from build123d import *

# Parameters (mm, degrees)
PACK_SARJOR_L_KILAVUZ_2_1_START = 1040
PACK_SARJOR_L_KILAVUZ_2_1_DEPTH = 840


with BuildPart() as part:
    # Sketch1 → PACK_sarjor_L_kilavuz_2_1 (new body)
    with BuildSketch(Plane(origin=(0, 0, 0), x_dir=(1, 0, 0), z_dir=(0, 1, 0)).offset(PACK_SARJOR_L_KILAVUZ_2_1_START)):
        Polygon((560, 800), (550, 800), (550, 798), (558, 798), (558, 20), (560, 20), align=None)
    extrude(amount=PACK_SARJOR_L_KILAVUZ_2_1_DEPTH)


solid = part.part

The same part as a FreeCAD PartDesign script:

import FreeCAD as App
import Part
import Sketcher

V = App.Vector
Q = App.Units.Quantity


def add_polygon(sketch, points):
    """Adds a closed chain of lines whose ends are joined by coincident constraints."""
    first, n = sketch.GeometryCount, len(points)
    for a, b in zip(points, points[1:] + points[:1]):
        sketch.addGeometry(Part.LineSegment(App.Vector(*a, 0), App.Vector(*b, 0)), False)
    for i in range(n):
        sketch.addConstraint(Sketcher.Constraint("Coincident", first + i, 2, first + (i + 1) % n, 1))

doc = App.newDocument("Part")
body = doc.addObject("PartDesign::Body", "Body")

# Sketch on XZ plane
sketch1 = body.newObject("Sketcher::SketchObject", "Sketch")
sketch1.AttachmentSupport = (doc.getObject("XZ_Plane"), [""])
sketch1.MapMode = "FlatFace"
sketch1.AttachmentOffset = App.Placement(V(0, 0, -1040), App.Rotation())
add_polygon(sketch1, [(560, -800), (550, -800), (550, -798), (558, -798), (558, -20), (560, -20)])  # lines 0-5
sketch1.addConstraint([
    Sketcher.Constraint("Horizontal", 0),
    Sketcher.Constraint("Vertical", 1),
    Sketcher.Constraint("Horizontal", 2),
    Sketcher.Constraint("Vertical", 3),
    Sketcher.Constraint("Horizontal", 4),
    Sketcher.Constraint("Vertical", 5),
    Sketcher.Constraint("Equal", 4, 1),
    Sketcher.Constraint("DistanceX", 0, 2, 0, 1, Q("10 mm")),
    Sketcher.Constraint("DistanceX", 2, 1, 2, 2, Q("8 mm")),
    Sketcher.Constraint("DistanceY", 3, 1, 3, 2, Q("778 mm")),
    Sketcher.Constraint("DistanceX", -1, 1, 0, 2, Q("550 mm")),
    Sketcher.Constraint("DistanceY", 0, 2, -1, 1, Q("800 mm")),
])
pad1 = body.newObject("PartDesign::Pad", "Pad")
pad1.Profile = sketch1
pad1.Length = 840
pad1.Reversed = True

doc.recompute()
